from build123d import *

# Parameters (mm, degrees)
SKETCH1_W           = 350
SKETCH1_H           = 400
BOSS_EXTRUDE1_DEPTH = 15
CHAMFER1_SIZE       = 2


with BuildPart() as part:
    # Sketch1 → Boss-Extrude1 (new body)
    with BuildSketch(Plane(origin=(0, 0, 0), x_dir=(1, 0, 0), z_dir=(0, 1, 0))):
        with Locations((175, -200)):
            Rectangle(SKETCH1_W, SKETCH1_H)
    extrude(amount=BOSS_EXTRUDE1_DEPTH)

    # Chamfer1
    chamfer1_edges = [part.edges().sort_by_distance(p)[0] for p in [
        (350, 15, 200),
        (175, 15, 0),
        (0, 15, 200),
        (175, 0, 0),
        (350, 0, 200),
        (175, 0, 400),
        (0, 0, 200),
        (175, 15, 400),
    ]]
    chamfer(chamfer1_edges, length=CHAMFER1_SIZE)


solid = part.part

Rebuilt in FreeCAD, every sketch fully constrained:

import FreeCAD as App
import Part
import Sketcher
from FreeCAD import Vector
Q = App.Units.Quantity


def edges_at(feature, points):
    """Names of the edges that pass closest to the given points."""
    edges = feature.Shape.Edges
    near = lambda p: min(range(len(edges)), key=lambda i: edges[i].distToShape(Part.Vertex(*p))[0])
    return sorted({f"Edge{near(p) + 1}" for p in points})


def add_polygon(sketch, points):
    """Adds a closed chain of lines whose ends are joined by coincident constraints."""
    first, n = sketch.GeometryCount, len(points)
    for a, b in zip(points, points[1:] + points[:1]):
        sketch.addGeometry(Part.LineSegment(App.Vector(*a, 0), App.Vector(*b, 0)), False)
    for i in range(n):
        sketch.addConstraint(Sketcher.Constraint("Coincident", first + i, 2, first + (i + 1) % n, 1))

doc = App.newDocument("Part")
params = doc.addObject("Spreadsheet::Sheet", "Params")
for row, (alias, value) in enumerate([
    ("sketch1_width", "350 mm"),
    ("sketch1_height", "400 mm"),
    ("pad1_length", "15 mm"),
    ("chamfer_size", "2 mm"),
], start=1):
    params.set(f"A{row}", alias)
    params.set(f"B{row}", "=" + value)
    params.setAlias(f"B{row}", alias)

body = doc.addObject("PartDesign::Body", "Body")

sketch1 = body.newObject("Sketcher::SketchObject", "Sketch")
sketch1.AttachmentSupport = (doc.getObject("XZ_Plane"), [""])
sketch1.MapMode = "FlatFace"
add_polygon(sketch1, [(0, 0), (0, 400), (350, 400), (350, 0)])
sketch1.addConstraint([
    Sketcher.Constraint("Vertical", 0),
    Sketcher.Constraint("Horizontal", 1),
    Sketcher.Constraint("Vertical", 2),
    Sketcher.Constraint("Horizontal", 3),
    Sketcher.Constraint("Coincident", 3, 2, -1, 1),
    Sketcher.Constraint("DistanceX", 1, 1, 1, 2, Q("350 mm")),
    Sketcher.Constraint("DistanceY", 0, 1, 0, 2, Q("400 mm")),
])
sketch1.setExpression("Constraints[9]", "Params.sketch1_width")
sketch1.setExpression("Constraints[10]", "Params.sketch1_height")
pad1 = body.newObject("PartDesign::Pad", "Pad")
pad1.Profile = sketch1
pad1.setExpression("Length", "Params.pad1_length")
pad1.Reversed = True
doc.recompute()

chamfer = body.newObject("PartDesign::Chamfer", "Chamfer")
chamfer.Base = (pad1, edges_at(pad1, [
    (350, 15, 200),
    (175, 15, 0),
    (0, 15, 200),
    (175, 0, 0),
    (350, 0, 200),
    (175, 0, 400),
    (0, 0, 200),
    (175, 15, 400),
]))
chamfer.setExpression("Size", "Params.chamfer_size")

doc.recompute()
